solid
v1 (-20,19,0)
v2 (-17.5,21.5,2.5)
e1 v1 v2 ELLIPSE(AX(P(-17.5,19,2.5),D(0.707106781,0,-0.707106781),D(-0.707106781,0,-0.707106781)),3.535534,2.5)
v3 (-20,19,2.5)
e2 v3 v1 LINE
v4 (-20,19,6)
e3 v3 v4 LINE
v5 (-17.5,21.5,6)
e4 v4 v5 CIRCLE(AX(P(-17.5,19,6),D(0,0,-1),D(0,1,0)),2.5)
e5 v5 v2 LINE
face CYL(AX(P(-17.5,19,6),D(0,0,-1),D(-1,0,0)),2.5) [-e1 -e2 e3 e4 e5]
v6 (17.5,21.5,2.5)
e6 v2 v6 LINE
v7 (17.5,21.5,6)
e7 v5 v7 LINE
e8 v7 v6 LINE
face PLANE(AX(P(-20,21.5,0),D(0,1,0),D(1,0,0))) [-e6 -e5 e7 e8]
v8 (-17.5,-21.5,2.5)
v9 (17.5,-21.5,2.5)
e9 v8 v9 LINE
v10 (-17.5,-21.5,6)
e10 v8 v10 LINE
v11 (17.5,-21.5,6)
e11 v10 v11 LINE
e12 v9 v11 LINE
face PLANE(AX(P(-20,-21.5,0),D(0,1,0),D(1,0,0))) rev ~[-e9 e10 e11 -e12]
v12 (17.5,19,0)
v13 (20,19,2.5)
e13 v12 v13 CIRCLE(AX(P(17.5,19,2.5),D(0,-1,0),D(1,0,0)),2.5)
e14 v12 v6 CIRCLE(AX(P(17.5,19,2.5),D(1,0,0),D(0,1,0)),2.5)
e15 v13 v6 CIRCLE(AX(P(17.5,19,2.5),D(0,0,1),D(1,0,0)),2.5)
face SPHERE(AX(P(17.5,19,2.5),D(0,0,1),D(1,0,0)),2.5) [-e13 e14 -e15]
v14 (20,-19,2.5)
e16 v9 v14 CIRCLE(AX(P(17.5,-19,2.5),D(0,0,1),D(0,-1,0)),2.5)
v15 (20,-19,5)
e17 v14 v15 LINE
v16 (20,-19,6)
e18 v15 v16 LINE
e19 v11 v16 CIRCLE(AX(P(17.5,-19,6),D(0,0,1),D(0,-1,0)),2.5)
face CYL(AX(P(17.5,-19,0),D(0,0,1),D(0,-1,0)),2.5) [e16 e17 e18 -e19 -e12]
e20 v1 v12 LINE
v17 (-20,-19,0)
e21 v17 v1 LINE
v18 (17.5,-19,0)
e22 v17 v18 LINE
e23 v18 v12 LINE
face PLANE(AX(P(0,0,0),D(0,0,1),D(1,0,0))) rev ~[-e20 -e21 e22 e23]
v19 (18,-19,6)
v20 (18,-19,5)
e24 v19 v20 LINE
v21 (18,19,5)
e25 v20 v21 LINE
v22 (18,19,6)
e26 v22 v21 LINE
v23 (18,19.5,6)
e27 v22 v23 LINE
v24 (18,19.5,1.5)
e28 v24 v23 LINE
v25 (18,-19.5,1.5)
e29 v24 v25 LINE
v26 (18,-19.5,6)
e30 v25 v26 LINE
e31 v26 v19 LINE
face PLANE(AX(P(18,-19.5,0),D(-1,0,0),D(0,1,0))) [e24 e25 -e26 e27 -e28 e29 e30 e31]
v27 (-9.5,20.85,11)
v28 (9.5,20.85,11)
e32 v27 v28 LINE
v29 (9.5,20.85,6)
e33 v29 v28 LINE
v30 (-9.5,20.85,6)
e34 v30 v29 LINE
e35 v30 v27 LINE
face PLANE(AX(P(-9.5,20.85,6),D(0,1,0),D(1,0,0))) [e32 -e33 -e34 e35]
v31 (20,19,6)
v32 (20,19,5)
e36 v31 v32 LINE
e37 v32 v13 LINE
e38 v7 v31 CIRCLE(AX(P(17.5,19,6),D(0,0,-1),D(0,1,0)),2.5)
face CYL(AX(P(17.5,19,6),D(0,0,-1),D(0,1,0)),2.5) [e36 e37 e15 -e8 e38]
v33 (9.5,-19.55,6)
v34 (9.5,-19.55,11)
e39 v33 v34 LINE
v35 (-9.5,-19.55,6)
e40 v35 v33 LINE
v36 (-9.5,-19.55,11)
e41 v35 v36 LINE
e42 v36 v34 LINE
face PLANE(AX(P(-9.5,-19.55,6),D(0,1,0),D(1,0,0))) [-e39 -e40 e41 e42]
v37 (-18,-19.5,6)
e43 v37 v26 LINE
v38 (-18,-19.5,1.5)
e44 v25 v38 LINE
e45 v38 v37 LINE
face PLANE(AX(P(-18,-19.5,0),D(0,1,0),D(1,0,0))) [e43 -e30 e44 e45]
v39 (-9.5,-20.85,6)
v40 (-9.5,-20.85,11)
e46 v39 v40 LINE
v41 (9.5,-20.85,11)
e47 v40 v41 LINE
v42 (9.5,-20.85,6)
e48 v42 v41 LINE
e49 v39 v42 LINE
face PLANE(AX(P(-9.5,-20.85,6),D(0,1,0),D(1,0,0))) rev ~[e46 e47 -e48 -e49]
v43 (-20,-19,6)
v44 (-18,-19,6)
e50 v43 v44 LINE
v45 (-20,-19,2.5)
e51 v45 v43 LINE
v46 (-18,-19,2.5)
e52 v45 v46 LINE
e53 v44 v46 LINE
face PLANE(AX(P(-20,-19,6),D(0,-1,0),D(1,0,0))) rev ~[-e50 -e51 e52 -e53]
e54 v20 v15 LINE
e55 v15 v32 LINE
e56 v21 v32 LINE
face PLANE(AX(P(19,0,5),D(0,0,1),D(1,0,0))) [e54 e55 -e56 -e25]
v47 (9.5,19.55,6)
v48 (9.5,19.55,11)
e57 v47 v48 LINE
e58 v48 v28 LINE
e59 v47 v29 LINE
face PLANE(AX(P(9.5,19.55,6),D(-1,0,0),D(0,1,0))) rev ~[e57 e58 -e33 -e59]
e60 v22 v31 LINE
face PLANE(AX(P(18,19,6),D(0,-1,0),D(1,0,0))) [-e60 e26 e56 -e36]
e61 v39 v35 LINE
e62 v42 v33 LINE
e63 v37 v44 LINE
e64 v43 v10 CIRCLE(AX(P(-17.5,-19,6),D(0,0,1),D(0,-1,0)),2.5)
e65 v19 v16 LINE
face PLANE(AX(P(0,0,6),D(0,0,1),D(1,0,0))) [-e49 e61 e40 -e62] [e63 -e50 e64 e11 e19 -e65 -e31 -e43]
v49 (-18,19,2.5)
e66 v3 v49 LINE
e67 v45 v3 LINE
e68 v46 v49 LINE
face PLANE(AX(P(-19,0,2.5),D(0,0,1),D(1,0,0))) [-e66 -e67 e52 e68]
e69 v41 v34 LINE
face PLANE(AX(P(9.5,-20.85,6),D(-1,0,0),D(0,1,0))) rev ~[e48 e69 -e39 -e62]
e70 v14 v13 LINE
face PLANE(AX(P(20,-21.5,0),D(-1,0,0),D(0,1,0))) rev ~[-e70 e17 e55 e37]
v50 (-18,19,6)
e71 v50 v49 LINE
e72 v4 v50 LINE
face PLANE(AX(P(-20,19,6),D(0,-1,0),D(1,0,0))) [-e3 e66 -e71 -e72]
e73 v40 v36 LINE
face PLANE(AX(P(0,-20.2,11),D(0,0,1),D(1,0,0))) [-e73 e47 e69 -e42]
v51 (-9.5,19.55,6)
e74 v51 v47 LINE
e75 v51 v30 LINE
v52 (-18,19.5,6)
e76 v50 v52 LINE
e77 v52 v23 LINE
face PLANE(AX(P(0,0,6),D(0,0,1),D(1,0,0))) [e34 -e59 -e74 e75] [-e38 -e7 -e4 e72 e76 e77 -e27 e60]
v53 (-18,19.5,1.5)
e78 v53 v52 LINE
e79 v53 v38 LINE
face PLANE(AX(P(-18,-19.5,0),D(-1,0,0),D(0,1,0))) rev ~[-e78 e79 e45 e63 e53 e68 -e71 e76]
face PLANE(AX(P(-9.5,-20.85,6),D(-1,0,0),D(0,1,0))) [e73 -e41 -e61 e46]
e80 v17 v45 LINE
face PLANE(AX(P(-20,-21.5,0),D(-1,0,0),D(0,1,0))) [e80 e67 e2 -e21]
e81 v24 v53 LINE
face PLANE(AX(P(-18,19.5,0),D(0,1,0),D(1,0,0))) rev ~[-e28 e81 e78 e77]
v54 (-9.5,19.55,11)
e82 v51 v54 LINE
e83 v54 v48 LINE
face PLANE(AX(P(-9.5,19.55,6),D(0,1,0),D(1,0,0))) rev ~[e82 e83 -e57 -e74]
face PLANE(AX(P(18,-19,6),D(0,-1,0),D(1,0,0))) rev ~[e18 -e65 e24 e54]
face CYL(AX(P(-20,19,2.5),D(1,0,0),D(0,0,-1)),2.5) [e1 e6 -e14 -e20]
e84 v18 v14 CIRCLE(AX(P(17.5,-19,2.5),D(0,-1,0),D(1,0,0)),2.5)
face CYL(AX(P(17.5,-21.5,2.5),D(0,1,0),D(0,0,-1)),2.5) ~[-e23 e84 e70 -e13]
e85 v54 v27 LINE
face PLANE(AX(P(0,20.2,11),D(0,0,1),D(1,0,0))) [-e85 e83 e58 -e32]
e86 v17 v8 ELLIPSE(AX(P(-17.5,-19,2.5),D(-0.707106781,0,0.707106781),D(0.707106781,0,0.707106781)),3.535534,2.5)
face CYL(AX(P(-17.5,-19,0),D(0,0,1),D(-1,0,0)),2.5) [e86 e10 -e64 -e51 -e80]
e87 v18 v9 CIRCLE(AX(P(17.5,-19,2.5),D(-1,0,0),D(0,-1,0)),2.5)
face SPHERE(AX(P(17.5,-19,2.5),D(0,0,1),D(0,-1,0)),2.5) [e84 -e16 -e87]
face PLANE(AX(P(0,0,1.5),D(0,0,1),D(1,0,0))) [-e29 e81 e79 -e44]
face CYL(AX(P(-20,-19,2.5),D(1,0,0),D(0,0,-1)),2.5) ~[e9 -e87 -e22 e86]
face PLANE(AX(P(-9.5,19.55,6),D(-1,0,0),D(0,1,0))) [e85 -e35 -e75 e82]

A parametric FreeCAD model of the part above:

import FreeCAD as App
import Part
import Sketcher
from FreeCAD import Vector


def edges_at(feature, points):
    """Names of the edges that pass closest to the given points."""
    edges = feature.Shape.Edges
    near = lambda p: min(range(len(edges)), key=lambda i: edges[i].distToShape(Part.Vertex(*p))[0])
    return sorted({f"Edge{near(p) + 1}" for p in points})


def add_polygon(sketch, points):
    """Adds a closed chain of lines whose ends are joined by coincident constraints."""
    first, n = sketch.GeometryCount, len(points)
    for a, b in zip(points, points[1:] + points[:1]):
        sketch.addGeometry(Part.LineSegment(App.Vector(*a, 0), App.Vector(*b, 0)), False)
    for i in range(n):
        sketch.addConstraint(Sketcher.Constraint("Coincident", first + i, 2, first + (i + 1) % n, 1))

doc = App.newDocument("Part")
body = doc.addObject("PartDesign::Body", "Body")

sketch1 = body.newObject("Sketcher::SketchObject", "Sketch")
sketch1.AttachmentSupport = (doc.getObject("XY_Plane"), [""])
sketch1.MapMode = "FlatFace"
add_polygon(sketch1, [(-20, 22), (-20, -22), (20, -22), (20, 22)])
sketch1.addConstraint(Sketcher.Constraint("Vertical", 0))
sketch1.addConstraint(Sketcher.Constraint("Horizontal", 1))
sketch1.addConstraint(Sketcher.Constraint("Vertical", 2))
sketch1.addConstraint(Sketcher.Constraint("Horizontal", 3))
sketch1.addConstraint(Sketcher.Constraint("Symmetric", 0, 2, 2, 2, -1, 1))
sketch1.addConstraint(Sketcher.Constraint("DistanceX", 1, 1, 1, 2, 40.0))
sketch1.addConstraint(Sketcher.Constraint("DistanceY", 0, 2, 0, 1, 43.0))
pad1 = body.newObject("PartDesign::Pad", "Pad")
pad1.Profile = sketch1
pad1.Length = 1.5

sketch2 = body.newObject("Sketcher::SketchObject", "Sketch001")
sketch2.AttachmentSupport = (doc.getObject("XY_Plane"), [""])
sketch2.MapMode = "FlatFace"
add_polygon(sketch2, [(-20, 22), (-20, -22), (20, -22), (20, 22)])
add_polygon(sketch2, [(18, -20), (-18, -20), (-18, 20), (18, 20)])
sketch2.addConstraint(Sketcher.Constraint("Vertical", 0))
sketch2.addConstraint(Sketcher.Constraint("Horizontal", 1))
sketch2.addConstraint(Sketcher.Constraint("Vertical", 2))
sketch2.addConstraint(Sketcher.Constraint("Horizontal", 3))
sketch2.addConstraint(Sketcher.Constraint("Horizontal", 4))
sketch2.addConstraint(Sketcher.Constraint("Vertical", 5))
sketch2.addConstraint(Sketcher.Constraint("Horizontal", 6))
sketch2.addConstraint(Sketcher.Constraint("Vertical", 7))
sketch2.addConstraint(Sketcher.Constraint("Symmetric", 0, 2, 2, 2, -1, 1))
sketch2.addConstraint(Sketcher.Constraint("Symmetric", 4, 2, 6, 2, -1, 1))
sketch2.addConstraint(Sketcher.Constraint("DistanceX", 1, 1, 1, 2, 40.0))
sketch2.addConstraint(Sketcher.Constraint("DistanceX", 4, 2, 4, 1, 36.0))
sketch2.addConstraint(Sketcher.Constraint("DistanceY", 0, 2, 0, 1, 43.0))
sketch2.addConstraint(Sketcher.Constraint("DistanceY", 5, 1, 5, 2, 39.0))
pad2 = body.newObject("PartDesign::Pad", "Pad001")
pad2.Profile = sketch2
pad2.Length = 6

sketch3 = body.newObject("Sketcher::SketchObject", "Sketch002")
sketch3.AttachmentSupport = (doc.getObject("XY_Plane"), [""])
sketch3.MapMode = "FlatFace"
sketch3.AttachmentOffset = App.Placement(Vector(0, 0, 6), App.Rotation())
add_polygon(sketch3, [(-20, 19), (-20, -19), (-18, -19), (-18, 19)])
sketch3.addConstraint(Sketcher.Constraint("Vertical", 0))
sketch3.addConstraint(Sketcher.Constraint("Horizontal", 1))
sketch3.addConstraint(Sketcher.Constraint("Vertical", 2))
sketch3.addConstraint(Sketcher.Constraint("Horizontal", 3))
sketch3.addConstraint(Sketcher.Constraint("DistanceX", 1, 1, 1, 2, 2.0))
sketch3.addConstraint(Sketcher.Constraint("DistanceY", 0, 2, 0, 1, 38.0))
sketch3.addConstraint(Sketcher.Constraint("DistanceX", 0, 2, -1, 1, 20.0))
sketch3.addConstraint(Sketcher.Constraint("DistanceY", 0, 2, -1, 1, 19.0))
pocket1 = body.newObject("PartDesign::Pocket", "Pocket")
pocket1.Profile = sketch3
pocket1.Length = 3.5
doc.recompute()

fillet = body.newObject("PartDesign::Fillet", "Fillet")
fillet.Base = (pocket1, edges_at(pocket1, [
    (-20, -21.5, 3),
    (20, -21.5, 3),
    (20, 21.5, 3),
    (-20, 21.5, 3),
    (0, -21.5, 0),
    (20, 0, 0),
    (0, 21.5, 0),
]))
fillet.Radius = 2.5

sketch4 = body.newObject("Sketcher::SketchObject", "Sketch003")
sketch4.AttachmentSupport = (doc.getObject("XY_Plane"), [""])
sketch4.MapMode = "FlatFace"
sketch4.AttachmentOffset = App.Placement(Vector(0, 0, 6), App.Rotation())
add_polygon(sketch4, [(-9.5, 20.9), (-9.5, 19.6), (9.5, 19.6), (9.5, 20.9)])
add_polygon(sketch4, [(-9.5, -19.6), (-9.5, -20.9), (9.5, -20.9), (9.5, -19.6)])
sketch4.addConstraint(Sketcher.Constraint("Vertical", 0))
sketch4.addConstraint(Sketcher.Constraint("Horizontal", 1))
sketch4.addConstraint(Sketcher.Constraint("Vertical", 2))
sketch4.addConstraint(Sketcher.Constraint("Horizontal", 3))
sketch4.addConstraint(Sketcher.Constraint("Vertical", 4))
sketch4.addConstraint(Sketcher.Constraint("Horizontal", 5))
sketch4.addConstraint(Sketcher.Constraint("Vertical", 6))
sketch4.addConstraint(Sketcher.Constraint("Horizontal", 7))
sketch4.addConstraint(Sketcher.Constraint("Symmetric", 2, 2, 4, 2, -1, 1))
sketch4.addConstraint(Sketcher.Constraint("Symmetric", 0, 2, 6, 2, -1, 1))
sketch4.addConstraint(Sketcher.Constraint("Vertical", 3, 2, 4, 2))
sketch4.addConstraint(Sketcher.Constraint("DistanceX", 1, 1, 1, 2, 19.0))
sketch4.addConstraint(Sketcher.Constraint("DistanceY", 0, 2, 0, 1, 1.3))
sketch4.addConstraint(Sketcher.Constraint("DistanceY", 4, 2, 0, 2, 40.4))
pad3 = body.newObject("PartDesign::Pad", "Pad002")
pad3.Profile = sketch4
pad3.Length = 5

sketch5 = body.newObject("Sketcher::SketchObject", "Sketch004")
sketch5.AttachmentSupport = (doc.getObject("XY_Plane"), [""])
sketch5.MapMode = "FlatFace"
sketch5.AttachmentOffset = App.Placement(Vector(0, 0, 6), App.Rotation())
add_polygon(sketch5, [(18, 19), (18, -19), (20, -19), (20, 19)])
sketch5.addConstraint(Sketcher.Constraint("Vertical", 0))
sketch5.addConstraint(Sketcher.Constraint("Horizontal", 1))
sketch5.addConstraint(Sketcher.Constraint("Vertical", 2))
sketch5.addConstraint(Sketcher.Constraint("Horizontal", 3))
sketch5.addConstraint(Sketcher.Constraint("DistanceX", 1, 1, 1, 2, 2.0))
sketch5.addConstraint(Sketcher.Constraint("DistanceY", 0, 2, 0, 1, 38.0))
sketch5.addConstraint(Sketcher.Constraint("DistanceX", -1, 1, 0, 2, 18.0))
sketch5.addConstraint(Sketcher.Constraint("DistanceY", 0, 2, -1, 1, 19.0))
pocket2 = body.newObject("PartDesign::Pocket", "Pocket001")
pocket2.Profile = sketch5
pocket2.Length = 1

doc.recompute()
